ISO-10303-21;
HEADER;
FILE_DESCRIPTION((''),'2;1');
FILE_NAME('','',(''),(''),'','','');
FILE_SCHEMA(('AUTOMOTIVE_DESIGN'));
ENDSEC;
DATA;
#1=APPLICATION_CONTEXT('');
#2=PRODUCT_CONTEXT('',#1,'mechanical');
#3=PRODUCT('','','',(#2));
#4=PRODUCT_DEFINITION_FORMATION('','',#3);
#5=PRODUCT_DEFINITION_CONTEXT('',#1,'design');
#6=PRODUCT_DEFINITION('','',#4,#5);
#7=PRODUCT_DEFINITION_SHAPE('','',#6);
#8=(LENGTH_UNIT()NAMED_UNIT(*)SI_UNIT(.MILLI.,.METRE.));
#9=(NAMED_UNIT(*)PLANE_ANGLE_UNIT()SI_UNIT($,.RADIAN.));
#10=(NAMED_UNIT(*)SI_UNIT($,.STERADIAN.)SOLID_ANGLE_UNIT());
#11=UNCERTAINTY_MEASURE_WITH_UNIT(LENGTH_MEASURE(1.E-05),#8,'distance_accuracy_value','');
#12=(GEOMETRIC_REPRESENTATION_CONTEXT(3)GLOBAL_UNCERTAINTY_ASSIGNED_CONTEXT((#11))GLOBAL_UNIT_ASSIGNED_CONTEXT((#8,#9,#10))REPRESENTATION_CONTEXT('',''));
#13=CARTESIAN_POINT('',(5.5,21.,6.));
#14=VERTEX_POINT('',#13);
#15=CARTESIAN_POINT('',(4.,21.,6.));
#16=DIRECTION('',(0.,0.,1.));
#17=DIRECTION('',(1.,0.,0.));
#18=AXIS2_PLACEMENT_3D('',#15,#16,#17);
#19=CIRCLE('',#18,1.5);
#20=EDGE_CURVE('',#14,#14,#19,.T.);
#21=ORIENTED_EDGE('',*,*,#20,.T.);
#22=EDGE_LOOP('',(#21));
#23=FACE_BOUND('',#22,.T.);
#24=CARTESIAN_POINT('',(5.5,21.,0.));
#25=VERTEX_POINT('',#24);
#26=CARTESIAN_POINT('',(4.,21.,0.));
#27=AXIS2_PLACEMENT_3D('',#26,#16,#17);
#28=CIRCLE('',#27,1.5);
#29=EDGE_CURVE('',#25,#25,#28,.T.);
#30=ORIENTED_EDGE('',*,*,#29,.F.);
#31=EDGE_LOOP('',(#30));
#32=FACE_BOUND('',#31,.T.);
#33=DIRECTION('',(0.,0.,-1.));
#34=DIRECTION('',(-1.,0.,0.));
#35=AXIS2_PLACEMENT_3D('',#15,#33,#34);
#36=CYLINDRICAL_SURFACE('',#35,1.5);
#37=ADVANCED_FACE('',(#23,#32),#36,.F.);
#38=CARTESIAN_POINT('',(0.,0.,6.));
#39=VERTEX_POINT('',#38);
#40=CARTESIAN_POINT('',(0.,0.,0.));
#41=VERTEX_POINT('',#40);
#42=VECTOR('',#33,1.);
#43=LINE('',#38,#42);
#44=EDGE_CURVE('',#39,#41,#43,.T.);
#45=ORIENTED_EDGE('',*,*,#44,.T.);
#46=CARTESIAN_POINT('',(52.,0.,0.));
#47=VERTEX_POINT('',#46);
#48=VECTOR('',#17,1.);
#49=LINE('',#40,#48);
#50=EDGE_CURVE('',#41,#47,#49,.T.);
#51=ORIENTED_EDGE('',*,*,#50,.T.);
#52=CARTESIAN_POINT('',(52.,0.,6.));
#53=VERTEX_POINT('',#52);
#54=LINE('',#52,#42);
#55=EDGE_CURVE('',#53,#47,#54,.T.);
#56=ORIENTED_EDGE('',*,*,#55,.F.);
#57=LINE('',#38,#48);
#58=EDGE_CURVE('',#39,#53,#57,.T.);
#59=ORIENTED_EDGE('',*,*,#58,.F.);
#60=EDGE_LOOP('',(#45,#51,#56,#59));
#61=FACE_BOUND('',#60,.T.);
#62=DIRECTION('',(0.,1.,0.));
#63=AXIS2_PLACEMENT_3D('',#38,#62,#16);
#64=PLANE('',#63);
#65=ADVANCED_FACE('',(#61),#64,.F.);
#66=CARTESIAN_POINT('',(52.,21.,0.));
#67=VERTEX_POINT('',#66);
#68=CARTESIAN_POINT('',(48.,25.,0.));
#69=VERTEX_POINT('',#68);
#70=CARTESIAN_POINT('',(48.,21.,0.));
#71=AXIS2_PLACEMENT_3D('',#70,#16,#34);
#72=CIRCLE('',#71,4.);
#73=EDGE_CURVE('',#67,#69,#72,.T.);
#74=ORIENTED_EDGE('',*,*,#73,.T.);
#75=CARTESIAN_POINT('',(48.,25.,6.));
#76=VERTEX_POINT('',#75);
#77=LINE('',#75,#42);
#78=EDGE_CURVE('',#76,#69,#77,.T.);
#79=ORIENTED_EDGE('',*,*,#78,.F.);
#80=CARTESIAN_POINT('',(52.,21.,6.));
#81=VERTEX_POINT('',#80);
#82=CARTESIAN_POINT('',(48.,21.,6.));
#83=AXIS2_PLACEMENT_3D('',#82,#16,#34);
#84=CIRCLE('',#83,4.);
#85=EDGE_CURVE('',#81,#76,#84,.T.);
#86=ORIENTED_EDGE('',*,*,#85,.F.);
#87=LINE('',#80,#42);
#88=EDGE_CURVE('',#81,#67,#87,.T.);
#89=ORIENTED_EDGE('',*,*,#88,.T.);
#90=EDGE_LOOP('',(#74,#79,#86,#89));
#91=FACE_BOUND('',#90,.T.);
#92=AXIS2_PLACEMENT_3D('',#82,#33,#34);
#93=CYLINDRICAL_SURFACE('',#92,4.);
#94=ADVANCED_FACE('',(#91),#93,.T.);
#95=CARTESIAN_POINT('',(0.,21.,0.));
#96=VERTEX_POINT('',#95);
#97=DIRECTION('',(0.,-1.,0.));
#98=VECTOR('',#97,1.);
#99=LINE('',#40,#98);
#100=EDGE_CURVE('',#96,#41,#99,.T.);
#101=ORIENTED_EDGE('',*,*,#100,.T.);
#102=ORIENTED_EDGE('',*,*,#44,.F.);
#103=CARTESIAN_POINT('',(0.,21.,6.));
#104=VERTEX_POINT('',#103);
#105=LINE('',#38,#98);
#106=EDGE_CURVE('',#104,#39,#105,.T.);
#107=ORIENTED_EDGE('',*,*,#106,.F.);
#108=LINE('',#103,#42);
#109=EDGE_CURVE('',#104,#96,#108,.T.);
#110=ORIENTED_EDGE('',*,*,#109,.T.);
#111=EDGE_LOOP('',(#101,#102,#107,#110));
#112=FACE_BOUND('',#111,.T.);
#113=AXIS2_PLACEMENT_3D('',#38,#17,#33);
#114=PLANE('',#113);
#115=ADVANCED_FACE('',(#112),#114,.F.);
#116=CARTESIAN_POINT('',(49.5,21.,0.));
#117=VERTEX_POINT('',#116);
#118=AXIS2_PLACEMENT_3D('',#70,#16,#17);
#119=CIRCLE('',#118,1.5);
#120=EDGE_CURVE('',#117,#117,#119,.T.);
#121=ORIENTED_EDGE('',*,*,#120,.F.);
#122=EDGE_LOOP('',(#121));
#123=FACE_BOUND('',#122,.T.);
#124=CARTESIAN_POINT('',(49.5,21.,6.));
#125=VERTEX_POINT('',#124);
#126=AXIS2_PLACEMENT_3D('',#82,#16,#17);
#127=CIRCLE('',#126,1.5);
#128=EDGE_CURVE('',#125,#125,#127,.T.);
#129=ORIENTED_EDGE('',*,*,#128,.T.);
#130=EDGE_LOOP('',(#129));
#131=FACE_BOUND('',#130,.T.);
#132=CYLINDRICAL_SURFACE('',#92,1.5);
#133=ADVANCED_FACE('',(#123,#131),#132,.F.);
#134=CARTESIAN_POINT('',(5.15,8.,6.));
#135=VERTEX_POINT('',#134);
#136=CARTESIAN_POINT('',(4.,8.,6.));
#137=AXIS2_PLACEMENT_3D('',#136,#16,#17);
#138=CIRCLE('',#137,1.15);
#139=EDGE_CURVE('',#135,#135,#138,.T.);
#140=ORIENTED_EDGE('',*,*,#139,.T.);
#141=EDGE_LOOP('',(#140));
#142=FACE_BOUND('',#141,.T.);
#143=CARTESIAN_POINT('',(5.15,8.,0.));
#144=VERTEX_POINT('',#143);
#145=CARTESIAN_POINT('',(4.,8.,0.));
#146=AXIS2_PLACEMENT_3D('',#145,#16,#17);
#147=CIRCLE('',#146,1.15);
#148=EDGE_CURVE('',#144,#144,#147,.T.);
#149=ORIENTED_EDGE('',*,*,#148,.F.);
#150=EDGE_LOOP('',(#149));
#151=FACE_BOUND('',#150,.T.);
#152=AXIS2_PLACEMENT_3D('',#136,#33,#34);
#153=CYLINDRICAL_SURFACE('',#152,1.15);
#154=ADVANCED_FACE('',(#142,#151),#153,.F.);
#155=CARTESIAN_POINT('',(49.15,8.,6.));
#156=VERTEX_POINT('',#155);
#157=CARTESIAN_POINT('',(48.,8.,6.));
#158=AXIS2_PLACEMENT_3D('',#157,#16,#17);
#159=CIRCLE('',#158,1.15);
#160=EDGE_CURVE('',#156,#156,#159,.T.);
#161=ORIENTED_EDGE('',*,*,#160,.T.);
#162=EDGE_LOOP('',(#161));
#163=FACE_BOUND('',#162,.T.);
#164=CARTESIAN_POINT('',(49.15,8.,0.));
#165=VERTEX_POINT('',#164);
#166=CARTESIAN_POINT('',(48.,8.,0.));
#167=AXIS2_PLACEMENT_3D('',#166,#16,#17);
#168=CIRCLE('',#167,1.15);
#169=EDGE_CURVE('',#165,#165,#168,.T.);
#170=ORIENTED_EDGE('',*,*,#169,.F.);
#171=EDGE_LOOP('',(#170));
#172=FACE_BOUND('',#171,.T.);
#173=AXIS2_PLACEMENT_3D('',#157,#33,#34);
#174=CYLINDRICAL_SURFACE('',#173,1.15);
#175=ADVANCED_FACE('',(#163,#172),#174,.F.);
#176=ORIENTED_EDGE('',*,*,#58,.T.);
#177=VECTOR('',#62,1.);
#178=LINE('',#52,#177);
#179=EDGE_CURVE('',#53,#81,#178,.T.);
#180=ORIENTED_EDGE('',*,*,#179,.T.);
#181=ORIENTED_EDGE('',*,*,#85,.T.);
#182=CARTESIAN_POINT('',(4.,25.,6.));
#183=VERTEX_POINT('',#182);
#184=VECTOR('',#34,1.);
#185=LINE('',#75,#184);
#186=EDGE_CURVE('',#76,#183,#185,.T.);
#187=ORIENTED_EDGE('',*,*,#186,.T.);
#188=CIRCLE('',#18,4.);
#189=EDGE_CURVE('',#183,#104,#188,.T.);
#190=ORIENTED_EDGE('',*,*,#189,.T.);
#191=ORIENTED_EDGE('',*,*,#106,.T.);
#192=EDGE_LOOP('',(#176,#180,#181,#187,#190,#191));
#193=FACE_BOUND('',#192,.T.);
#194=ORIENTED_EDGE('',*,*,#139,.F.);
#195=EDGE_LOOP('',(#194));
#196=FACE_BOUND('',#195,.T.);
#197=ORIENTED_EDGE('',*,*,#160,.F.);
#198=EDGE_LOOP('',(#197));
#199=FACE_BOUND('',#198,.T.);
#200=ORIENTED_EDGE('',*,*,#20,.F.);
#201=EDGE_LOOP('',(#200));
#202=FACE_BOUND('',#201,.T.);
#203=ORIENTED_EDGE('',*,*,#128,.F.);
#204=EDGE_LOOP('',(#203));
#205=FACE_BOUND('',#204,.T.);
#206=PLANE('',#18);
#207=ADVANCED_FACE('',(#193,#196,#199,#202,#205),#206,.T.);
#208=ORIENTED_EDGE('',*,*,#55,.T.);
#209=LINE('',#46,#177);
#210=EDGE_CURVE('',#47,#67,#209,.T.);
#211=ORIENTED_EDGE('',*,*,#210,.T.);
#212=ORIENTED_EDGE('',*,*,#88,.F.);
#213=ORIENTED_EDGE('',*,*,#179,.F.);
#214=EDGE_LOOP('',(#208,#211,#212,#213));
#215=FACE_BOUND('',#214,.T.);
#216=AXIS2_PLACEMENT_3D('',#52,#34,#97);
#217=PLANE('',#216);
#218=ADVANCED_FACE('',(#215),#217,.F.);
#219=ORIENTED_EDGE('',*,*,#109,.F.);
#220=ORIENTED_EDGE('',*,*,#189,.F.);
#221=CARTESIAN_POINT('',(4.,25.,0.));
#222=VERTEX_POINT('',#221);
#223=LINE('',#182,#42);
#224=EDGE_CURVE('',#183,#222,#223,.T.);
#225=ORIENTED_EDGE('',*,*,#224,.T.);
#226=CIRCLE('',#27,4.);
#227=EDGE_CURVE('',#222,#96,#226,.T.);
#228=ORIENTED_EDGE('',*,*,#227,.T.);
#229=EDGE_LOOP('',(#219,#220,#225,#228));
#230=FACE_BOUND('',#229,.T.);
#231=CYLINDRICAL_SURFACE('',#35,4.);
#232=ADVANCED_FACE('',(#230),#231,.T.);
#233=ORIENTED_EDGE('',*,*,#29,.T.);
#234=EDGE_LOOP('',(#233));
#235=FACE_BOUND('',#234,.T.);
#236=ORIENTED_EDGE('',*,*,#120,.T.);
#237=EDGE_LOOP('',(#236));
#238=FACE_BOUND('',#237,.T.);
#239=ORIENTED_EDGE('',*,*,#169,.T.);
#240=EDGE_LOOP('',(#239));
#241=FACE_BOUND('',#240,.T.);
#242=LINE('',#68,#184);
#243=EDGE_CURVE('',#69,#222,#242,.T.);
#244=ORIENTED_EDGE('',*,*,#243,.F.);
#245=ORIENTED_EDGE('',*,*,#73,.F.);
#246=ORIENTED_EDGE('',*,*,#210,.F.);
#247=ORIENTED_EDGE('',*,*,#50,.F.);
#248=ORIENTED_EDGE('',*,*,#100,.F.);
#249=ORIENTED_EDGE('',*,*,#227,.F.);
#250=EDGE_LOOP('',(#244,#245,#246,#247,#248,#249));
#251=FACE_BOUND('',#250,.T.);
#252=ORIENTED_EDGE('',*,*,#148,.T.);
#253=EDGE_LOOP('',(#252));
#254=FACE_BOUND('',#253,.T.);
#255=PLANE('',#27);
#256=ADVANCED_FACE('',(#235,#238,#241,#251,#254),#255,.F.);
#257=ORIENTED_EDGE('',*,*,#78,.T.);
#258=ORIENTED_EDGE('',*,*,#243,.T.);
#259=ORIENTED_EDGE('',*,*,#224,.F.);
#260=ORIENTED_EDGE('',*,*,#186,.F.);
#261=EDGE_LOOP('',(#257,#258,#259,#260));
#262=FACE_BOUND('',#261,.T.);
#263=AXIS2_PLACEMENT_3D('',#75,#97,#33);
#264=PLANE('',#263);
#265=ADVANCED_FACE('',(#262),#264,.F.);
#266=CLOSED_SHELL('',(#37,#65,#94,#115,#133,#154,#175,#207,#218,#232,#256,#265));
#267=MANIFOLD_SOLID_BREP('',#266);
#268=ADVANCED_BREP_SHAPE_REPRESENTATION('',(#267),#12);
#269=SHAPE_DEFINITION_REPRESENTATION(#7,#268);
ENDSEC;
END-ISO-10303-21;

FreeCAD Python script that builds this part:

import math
import FreeCAD as App
import Part
import Sketcher
from FreeCAD import Vector
Q = App.Units.Quantity

doc = App.newDocument("Part")
body = doc.addObject("PartDesign::Body", "Body")

sketch1 = body.newObject("Sketcher::SketchObject", "Sketch")
sketch1.AttachmentSupport = (doc.getObject("XY_Plane"), [""])
sketch1.MapMode = "FlatFace"
sketch1.addGeometry([
    Part.LineSegment(Vector(0, 0, 0), Vector(52, 0, 0)),
    Part.LineSegment(Vector(52, 0, 0), Vector(52, 21, 0)),
    Part.ArcOfCircle(Part.Circle(Vector(48, 21, 0), Vector(0, 0, 1), 4), math.radians(0), math.radians(90)),
    Part.LineSegment(Vector(48, 25, 0), Vector(4, 25, 0)),
    Part.ArcOfCircle(Part.Circle(Vector(4, 21, 0), Vector(0, 0, 1), 4), math.radians(90), math.radians(180)),
    Part.LineSegment(Vector(0, 21, 0), Vector(0, 0, 0)),
    Part.Circle(Vector(4, 8, 0), Vector(0, 0, 1), 1.1),
    Part.Circle(Vector(48, 8, 0), Vector(0, 0, 1), 1.1),
    Part.Circle(Vector(4, 21, 0), Vector(0, 0, 1), 1.5),
    Part.Circle(Vector(48, 21, 0), Vector(0, 0, 1), 1.5),
], False)
sketch1.addConstraint([
    Sketcher.Constraint("Coincident", 0, 2, 1, 1),
    Sketcher.Constraint("Tangent", 1, 2, 2, 1),
    Sketcher.Constraint("Tangent", 2, 2, 3, 1),
    Sketcher.Constraint("Tangent", 3, 2, 4, 1),
    Sketcher.Constraint("Tangent", 4, 2, 5, 1),
    Sketcher.Constraint("Coincident", 5, 2, 0, 1),
    Sketcher.Constraint("Horizontal", 0),
    Sketcher.Constraint("Vertical", 1),
    Sketcher.Constraint("Horizontal", 3),
    Sketcher.Constraint("Vertical", 5),
    Sketcher.Constraint("Coincident", 5, 2, -1, 1),
    Sketcher.Constraint("Coincident", 8, 3, 4, 3),
    Sketcher.Constraint("Coincident", 9, 3, 2, 3),
    Sketcher.Constraint("Equal", 2, 4),
    Sketcher.Constraint("Equal", 6, 7),
    Sketcher.Constraint("Equal", 8, 9),
    Sketcher.Constraint("Horizontal", 6, 3, 7, 3),
    Sketcher.Constraint("Vertical", 4, 3, 6, 3),
    Sketcher.Constraint("Vertical", 2, 3, 7, 3),
    Sketcher.Constraint("Diameter", 8, Q("3 mm")),
    Sketcher.Constraint("Radius", 2, Q("4 mm")),
    Sketcher.Constraint("Diameter", 6, Q("2.3 mm")),
    Sketcher.Constraint("DistanceX", 0, 1, 0, 2, Q("52 mm")),
    Sketcher.Constraint("DistanceY", 1, 1, 1, 2, Q("21 mm")),
    Sketcher.Constraint("DistanceY", -1, 1, 6, 3, Q("8 mm")),
])
pad1 = body.newObject("PartDesign::Pad", "Pad")
pad1.Profile = sketch1
pad1.Length = 6

doc.recompute()
